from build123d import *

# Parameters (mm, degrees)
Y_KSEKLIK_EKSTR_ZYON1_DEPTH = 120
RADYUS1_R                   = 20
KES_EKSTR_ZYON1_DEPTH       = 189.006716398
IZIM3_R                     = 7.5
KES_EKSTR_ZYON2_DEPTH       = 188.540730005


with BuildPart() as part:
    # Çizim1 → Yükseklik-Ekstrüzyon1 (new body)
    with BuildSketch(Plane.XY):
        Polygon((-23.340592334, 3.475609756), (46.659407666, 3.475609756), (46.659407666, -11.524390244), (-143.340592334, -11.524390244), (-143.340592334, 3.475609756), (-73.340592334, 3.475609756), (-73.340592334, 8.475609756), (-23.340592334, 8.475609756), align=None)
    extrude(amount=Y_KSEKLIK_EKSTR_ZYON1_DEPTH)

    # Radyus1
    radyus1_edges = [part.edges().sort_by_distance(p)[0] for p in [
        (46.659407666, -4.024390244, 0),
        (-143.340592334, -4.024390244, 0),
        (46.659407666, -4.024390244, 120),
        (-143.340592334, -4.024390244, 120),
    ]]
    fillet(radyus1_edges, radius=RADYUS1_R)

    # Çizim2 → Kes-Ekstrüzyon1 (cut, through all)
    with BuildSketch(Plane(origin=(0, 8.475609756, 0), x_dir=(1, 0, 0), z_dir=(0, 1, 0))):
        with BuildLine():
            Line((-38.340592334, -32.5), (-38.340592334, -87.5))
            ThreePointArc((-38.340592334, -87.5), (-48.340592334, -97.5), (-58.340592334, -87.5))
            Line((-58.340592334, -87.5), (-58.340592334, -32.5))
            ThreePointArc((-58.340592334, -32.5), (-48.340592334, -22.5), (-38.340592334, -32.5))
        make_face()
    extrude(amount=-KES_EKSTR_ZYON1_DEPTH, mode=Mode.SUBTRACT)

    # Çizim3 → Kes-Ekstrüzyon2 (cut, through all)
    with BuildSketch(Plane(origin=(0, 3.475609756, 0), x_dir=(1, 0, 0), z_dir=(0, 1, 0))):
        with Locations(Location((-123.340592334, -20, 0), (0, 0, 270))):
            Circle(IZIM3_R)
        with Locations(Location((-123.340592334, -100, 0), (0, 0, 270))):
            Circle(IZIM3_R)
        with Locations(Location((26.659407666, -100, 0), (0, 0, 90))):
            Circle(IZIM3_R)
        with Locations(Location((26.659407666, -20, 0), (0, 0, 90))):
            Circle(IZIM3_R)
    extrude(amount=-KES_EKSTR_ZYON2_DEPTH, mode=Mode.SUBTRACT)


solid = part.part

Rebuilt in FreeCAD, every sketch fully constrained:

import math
import FreeCAD as App
import Part
import Sketcher
from FreeCAD import Vector
Q = App.Units.Quantity


def edges_at(feature, points):
    """Names of the edges that pass closest to the given points."""
    edges = feature.Shape.Edges
    near = lambda p: min(range(len(edges)), key=lambda i: edges[i].distToShape(Part.Vertex(*p))[0])
    return sorted({f"Edge{near(p) + 1}" for p in points})

doc = App.newDocument("Part")
body = doc.addObject("PartDesign::Body", "Body")

sketch1 = doc.addObject("Sketcher::SketchObject", "Sketch")
body.addObject(sketch1)
sketch1.AttachmentSupport = (doc.XY_Plane, [""])
sketch1.MapMode = "FlatFace"
sketch1.addGeometry([
    Part.LineSegment(Vector(47, 3, 0), Vector(-23, 3, 0)),
    Part.LineSegment(Vector(-23, 3, 0), Vector(-23, 8, 0)),
    Part.LineSegment(Vector(-23, 8, 0), Vector(-73, 8, 0)),
    Part.LineSegment(Vector(-73, 8, 0), Vector(-73, 3, 0)),
    Part.LineSegment(Vector(-73, 3, 0), Vector(-143, 3, 0)),
    Part.LineSegment(Vector(-143, 3, 0), Vector(-143, -12, 0)),
    Part.LineSegment(Vector(-143, -12, 0), Vector(47, -12, 0)),
    Part.LineSegment(Vector(47, -12, 0), Vector(47, 3, 0)),
], False)
sketch1.addConstraint([
    Sketcher.Constraint("Coincident", 0, 2, 1, 1),
    Sketcher.Constraint("Coincident", 1, 2, 2, 1),
    Sketcher.Constraint("Coincident", 2, 2, 3, 1),
    Sketcher.Constraint("Coincident", 3, 2, 4, 1),
    Sketcher.Constraint("Coincident", 4, 2, 5, 1),
    Sketcher.Constraint("Coincident", 5, 2, 6, 1),
    Sketcher.Constraint("Coincident", 6, 2, 7, 1),
    Sketcher.Constraint("Coincident", 7, 2, 0, 1),
    Sketcher.Constraint("Horizontal", 0),
    Sketcher.Constraint("Vertical", 1),
    Sketcher.Constraint("Horizontal", 2),
    Sketcher.Constraint("Vertical", 3),
    Sketcher.Constraint("Horizontal", 4),
    Sketcher.Constraint("Vertical", 5),
    Sketcher.Constraint("Horizontal", 6),
    Sketcher.Constraint("Vertical", 7),
    Sketcher.Constraint("Horizontal", 0, 2, 3, 2),
    Sketcher.Constraint("Equal", 0, 4),
    Sketcher.Constraint("DistanceX", 0, 2, 0, 1, Q("70 mm")),
    Sketcher.Constraint("DistanceX", 2, 2, 2, 1, Q("50 mm")),
    Sketcher.Constraint("DistanceY", 1, 1, 1, 2, Q("5 mm")),
    Sketcher.Constraint("DistanceY", 5, 2, 5, 1, Q("15 mm")),
    Sketcher.Constraint("DistanceY", -1, 1, 0, 2, Q("3.47561 mm")),
    Sketcher.Constraint("DistanceX", 0, 2, -1, 1, Q("23.340592 mm")),
])
pad1 = doc.addObject("PartDesign::Pad", "Pad")
body.addObject(pad1)
pad1.Profile = sketch1
pad1.Length = 120
doc.recompute()

fillet = doc.addObject("PartDesign::Fillet", "Fillet")
body.addObject(fillet)
fillet.Base = (pad1, edges_at(pad1, [
    (46.659, -4.024, 0),
    (-143.341, -4.024, 0),
    (46.659, -4.024, 120),
    (-143.341, -4.024, 120),
]))
fillet.Radius = 20

sketch2 = doc.addObject("Sketcher::SketchObject", "Sketch001")
body.addObject(sketch2)
sketch2.AttachmentSupport = (doc.XZ_Plane, [""])
sketch2.MapMode = "FlatFace"
sketch2.AttachmentOffset = App.Placement(Vector(0, 0, -8.47561), App.Rotation())
sketch2.addGeometry([
    Part.LineSegment(Vector(-38, 88, 0), Vector(-38, 32, 0)),
    Part.ArcOfCircle(Part.Circle(Vector(-48, 32, 0), Vector(0, 0, 1), 10), math.radians(180), math.radians(360)),
    Part.LineSegment(Vector(-58, 32, 0), Vector(-58, 88, 0)),
    Part.ArcOfCircle(Part.Circle(Vector(-48, 88, 0), Vector(0, 0, 1), 10), math.radians(0), math.radians(180)),
], False)
sketch2.addConstraint([
    Sketcher.Constraint("Tangent", 0, 2, 1, 2),
    Sketcher.Constraint("Tangent", 1, 1, 2, 1),
    Sketcher.Constraint("Tangent", 2, 2, 3, 2),
    Sketcher.Constraint("Tangent", 3, 1, 0, 1),
    Sketcher.Constraint("Vertical", 0),
    Sketcher.Constraint("Vertical", 2),
    Sketcher.Constraint("Radius", 1, Q("10 mm")),
    Sketcher.Constraint("DistanceY", 0, 2, 0, 1, Q("55 mm")),
    Sketcher.Constraint("DistanceY", -1, 1, 1, 3, Q("32.5 mm")),
    Sketcher.Constraint("DistanceX", 1, 3, -1, 1, Q("48.340592 mm")),
])
pocket1 = doc.addObject("PartDesign::Pocket", "Pocket")
body.addObject(pocket1)
pocket1.Profile = sketch2
pocket1.Type = "ThroughAll"
pocket1.Reversed = True

sketch3 = doc.addObject("Sketcher::SketchObject", "Sketch002")
body.addObject(sketch3)
sketch3.AttachmentSupport = (doc.XZ_Plane, [""])
sketch3.MapMode = "FlatFace"
sketch3.AttachmentOffset = App.Placement(Vector(0, 0, -3.47561), App.Rotation())
sketch3.addGeometry([
    Part.Circle(Vector(-123, 20, 0), Vector(0, 0, 1), 8),
    Part.Circle(Vector(-123, 100, 0), Vector(0, 0, 1), 8),
    Part.Circle(Vector(27, 100, 0), Vector(0, 0, 1), 8),
    Part.Circle(Vector(27, 20, 0), Vector(0, 0, 1), 8),
], False)
sketch3.addConstraint([
    Sketcher.Constraint("Equal", 0, 1),
    Sketcher.Constraint("Equal", 1, 2),
    Sketcher.Constraint("Equal", 2, 3),
    Sketcher.Constraint("Horizontal", 1, 3, 2, 3),
    Sketcher.Constraint("Horizontal", 0, 3, 3, 3),
    Sketcher.Constraint("Vertical", 0, 3, 1, 3),
    Sketcher.Constraint("Vertical", 2, 3, 3, 3),
    Sketcher.Constraint("Diameter", 0, Q("15 mm")),
    Sketcher.Constraint("DistanceY", -1, 1, 0, 3, Q("20 mm")),
    Sketcher.Constraint("DistanceY", -1, 1, 1, 3, Q("100 mm")),
    Sketcher.Constraint("DistanceX", 1, 3, 2, 3, Q("150 mm")),
    Sketcher.Constraint("DistanceX", 0, 3, -1, 1, Q("123.340592 mm")),
])
pocket2 = doc.addObject("PartDesign::Pocket", "Pocket001")
body.addObject(pocket2)
pocket2.Profile = sketch3
pocket2.Type = "ThroughAll"
pocket2.Reversed = True

doc.recompute()
